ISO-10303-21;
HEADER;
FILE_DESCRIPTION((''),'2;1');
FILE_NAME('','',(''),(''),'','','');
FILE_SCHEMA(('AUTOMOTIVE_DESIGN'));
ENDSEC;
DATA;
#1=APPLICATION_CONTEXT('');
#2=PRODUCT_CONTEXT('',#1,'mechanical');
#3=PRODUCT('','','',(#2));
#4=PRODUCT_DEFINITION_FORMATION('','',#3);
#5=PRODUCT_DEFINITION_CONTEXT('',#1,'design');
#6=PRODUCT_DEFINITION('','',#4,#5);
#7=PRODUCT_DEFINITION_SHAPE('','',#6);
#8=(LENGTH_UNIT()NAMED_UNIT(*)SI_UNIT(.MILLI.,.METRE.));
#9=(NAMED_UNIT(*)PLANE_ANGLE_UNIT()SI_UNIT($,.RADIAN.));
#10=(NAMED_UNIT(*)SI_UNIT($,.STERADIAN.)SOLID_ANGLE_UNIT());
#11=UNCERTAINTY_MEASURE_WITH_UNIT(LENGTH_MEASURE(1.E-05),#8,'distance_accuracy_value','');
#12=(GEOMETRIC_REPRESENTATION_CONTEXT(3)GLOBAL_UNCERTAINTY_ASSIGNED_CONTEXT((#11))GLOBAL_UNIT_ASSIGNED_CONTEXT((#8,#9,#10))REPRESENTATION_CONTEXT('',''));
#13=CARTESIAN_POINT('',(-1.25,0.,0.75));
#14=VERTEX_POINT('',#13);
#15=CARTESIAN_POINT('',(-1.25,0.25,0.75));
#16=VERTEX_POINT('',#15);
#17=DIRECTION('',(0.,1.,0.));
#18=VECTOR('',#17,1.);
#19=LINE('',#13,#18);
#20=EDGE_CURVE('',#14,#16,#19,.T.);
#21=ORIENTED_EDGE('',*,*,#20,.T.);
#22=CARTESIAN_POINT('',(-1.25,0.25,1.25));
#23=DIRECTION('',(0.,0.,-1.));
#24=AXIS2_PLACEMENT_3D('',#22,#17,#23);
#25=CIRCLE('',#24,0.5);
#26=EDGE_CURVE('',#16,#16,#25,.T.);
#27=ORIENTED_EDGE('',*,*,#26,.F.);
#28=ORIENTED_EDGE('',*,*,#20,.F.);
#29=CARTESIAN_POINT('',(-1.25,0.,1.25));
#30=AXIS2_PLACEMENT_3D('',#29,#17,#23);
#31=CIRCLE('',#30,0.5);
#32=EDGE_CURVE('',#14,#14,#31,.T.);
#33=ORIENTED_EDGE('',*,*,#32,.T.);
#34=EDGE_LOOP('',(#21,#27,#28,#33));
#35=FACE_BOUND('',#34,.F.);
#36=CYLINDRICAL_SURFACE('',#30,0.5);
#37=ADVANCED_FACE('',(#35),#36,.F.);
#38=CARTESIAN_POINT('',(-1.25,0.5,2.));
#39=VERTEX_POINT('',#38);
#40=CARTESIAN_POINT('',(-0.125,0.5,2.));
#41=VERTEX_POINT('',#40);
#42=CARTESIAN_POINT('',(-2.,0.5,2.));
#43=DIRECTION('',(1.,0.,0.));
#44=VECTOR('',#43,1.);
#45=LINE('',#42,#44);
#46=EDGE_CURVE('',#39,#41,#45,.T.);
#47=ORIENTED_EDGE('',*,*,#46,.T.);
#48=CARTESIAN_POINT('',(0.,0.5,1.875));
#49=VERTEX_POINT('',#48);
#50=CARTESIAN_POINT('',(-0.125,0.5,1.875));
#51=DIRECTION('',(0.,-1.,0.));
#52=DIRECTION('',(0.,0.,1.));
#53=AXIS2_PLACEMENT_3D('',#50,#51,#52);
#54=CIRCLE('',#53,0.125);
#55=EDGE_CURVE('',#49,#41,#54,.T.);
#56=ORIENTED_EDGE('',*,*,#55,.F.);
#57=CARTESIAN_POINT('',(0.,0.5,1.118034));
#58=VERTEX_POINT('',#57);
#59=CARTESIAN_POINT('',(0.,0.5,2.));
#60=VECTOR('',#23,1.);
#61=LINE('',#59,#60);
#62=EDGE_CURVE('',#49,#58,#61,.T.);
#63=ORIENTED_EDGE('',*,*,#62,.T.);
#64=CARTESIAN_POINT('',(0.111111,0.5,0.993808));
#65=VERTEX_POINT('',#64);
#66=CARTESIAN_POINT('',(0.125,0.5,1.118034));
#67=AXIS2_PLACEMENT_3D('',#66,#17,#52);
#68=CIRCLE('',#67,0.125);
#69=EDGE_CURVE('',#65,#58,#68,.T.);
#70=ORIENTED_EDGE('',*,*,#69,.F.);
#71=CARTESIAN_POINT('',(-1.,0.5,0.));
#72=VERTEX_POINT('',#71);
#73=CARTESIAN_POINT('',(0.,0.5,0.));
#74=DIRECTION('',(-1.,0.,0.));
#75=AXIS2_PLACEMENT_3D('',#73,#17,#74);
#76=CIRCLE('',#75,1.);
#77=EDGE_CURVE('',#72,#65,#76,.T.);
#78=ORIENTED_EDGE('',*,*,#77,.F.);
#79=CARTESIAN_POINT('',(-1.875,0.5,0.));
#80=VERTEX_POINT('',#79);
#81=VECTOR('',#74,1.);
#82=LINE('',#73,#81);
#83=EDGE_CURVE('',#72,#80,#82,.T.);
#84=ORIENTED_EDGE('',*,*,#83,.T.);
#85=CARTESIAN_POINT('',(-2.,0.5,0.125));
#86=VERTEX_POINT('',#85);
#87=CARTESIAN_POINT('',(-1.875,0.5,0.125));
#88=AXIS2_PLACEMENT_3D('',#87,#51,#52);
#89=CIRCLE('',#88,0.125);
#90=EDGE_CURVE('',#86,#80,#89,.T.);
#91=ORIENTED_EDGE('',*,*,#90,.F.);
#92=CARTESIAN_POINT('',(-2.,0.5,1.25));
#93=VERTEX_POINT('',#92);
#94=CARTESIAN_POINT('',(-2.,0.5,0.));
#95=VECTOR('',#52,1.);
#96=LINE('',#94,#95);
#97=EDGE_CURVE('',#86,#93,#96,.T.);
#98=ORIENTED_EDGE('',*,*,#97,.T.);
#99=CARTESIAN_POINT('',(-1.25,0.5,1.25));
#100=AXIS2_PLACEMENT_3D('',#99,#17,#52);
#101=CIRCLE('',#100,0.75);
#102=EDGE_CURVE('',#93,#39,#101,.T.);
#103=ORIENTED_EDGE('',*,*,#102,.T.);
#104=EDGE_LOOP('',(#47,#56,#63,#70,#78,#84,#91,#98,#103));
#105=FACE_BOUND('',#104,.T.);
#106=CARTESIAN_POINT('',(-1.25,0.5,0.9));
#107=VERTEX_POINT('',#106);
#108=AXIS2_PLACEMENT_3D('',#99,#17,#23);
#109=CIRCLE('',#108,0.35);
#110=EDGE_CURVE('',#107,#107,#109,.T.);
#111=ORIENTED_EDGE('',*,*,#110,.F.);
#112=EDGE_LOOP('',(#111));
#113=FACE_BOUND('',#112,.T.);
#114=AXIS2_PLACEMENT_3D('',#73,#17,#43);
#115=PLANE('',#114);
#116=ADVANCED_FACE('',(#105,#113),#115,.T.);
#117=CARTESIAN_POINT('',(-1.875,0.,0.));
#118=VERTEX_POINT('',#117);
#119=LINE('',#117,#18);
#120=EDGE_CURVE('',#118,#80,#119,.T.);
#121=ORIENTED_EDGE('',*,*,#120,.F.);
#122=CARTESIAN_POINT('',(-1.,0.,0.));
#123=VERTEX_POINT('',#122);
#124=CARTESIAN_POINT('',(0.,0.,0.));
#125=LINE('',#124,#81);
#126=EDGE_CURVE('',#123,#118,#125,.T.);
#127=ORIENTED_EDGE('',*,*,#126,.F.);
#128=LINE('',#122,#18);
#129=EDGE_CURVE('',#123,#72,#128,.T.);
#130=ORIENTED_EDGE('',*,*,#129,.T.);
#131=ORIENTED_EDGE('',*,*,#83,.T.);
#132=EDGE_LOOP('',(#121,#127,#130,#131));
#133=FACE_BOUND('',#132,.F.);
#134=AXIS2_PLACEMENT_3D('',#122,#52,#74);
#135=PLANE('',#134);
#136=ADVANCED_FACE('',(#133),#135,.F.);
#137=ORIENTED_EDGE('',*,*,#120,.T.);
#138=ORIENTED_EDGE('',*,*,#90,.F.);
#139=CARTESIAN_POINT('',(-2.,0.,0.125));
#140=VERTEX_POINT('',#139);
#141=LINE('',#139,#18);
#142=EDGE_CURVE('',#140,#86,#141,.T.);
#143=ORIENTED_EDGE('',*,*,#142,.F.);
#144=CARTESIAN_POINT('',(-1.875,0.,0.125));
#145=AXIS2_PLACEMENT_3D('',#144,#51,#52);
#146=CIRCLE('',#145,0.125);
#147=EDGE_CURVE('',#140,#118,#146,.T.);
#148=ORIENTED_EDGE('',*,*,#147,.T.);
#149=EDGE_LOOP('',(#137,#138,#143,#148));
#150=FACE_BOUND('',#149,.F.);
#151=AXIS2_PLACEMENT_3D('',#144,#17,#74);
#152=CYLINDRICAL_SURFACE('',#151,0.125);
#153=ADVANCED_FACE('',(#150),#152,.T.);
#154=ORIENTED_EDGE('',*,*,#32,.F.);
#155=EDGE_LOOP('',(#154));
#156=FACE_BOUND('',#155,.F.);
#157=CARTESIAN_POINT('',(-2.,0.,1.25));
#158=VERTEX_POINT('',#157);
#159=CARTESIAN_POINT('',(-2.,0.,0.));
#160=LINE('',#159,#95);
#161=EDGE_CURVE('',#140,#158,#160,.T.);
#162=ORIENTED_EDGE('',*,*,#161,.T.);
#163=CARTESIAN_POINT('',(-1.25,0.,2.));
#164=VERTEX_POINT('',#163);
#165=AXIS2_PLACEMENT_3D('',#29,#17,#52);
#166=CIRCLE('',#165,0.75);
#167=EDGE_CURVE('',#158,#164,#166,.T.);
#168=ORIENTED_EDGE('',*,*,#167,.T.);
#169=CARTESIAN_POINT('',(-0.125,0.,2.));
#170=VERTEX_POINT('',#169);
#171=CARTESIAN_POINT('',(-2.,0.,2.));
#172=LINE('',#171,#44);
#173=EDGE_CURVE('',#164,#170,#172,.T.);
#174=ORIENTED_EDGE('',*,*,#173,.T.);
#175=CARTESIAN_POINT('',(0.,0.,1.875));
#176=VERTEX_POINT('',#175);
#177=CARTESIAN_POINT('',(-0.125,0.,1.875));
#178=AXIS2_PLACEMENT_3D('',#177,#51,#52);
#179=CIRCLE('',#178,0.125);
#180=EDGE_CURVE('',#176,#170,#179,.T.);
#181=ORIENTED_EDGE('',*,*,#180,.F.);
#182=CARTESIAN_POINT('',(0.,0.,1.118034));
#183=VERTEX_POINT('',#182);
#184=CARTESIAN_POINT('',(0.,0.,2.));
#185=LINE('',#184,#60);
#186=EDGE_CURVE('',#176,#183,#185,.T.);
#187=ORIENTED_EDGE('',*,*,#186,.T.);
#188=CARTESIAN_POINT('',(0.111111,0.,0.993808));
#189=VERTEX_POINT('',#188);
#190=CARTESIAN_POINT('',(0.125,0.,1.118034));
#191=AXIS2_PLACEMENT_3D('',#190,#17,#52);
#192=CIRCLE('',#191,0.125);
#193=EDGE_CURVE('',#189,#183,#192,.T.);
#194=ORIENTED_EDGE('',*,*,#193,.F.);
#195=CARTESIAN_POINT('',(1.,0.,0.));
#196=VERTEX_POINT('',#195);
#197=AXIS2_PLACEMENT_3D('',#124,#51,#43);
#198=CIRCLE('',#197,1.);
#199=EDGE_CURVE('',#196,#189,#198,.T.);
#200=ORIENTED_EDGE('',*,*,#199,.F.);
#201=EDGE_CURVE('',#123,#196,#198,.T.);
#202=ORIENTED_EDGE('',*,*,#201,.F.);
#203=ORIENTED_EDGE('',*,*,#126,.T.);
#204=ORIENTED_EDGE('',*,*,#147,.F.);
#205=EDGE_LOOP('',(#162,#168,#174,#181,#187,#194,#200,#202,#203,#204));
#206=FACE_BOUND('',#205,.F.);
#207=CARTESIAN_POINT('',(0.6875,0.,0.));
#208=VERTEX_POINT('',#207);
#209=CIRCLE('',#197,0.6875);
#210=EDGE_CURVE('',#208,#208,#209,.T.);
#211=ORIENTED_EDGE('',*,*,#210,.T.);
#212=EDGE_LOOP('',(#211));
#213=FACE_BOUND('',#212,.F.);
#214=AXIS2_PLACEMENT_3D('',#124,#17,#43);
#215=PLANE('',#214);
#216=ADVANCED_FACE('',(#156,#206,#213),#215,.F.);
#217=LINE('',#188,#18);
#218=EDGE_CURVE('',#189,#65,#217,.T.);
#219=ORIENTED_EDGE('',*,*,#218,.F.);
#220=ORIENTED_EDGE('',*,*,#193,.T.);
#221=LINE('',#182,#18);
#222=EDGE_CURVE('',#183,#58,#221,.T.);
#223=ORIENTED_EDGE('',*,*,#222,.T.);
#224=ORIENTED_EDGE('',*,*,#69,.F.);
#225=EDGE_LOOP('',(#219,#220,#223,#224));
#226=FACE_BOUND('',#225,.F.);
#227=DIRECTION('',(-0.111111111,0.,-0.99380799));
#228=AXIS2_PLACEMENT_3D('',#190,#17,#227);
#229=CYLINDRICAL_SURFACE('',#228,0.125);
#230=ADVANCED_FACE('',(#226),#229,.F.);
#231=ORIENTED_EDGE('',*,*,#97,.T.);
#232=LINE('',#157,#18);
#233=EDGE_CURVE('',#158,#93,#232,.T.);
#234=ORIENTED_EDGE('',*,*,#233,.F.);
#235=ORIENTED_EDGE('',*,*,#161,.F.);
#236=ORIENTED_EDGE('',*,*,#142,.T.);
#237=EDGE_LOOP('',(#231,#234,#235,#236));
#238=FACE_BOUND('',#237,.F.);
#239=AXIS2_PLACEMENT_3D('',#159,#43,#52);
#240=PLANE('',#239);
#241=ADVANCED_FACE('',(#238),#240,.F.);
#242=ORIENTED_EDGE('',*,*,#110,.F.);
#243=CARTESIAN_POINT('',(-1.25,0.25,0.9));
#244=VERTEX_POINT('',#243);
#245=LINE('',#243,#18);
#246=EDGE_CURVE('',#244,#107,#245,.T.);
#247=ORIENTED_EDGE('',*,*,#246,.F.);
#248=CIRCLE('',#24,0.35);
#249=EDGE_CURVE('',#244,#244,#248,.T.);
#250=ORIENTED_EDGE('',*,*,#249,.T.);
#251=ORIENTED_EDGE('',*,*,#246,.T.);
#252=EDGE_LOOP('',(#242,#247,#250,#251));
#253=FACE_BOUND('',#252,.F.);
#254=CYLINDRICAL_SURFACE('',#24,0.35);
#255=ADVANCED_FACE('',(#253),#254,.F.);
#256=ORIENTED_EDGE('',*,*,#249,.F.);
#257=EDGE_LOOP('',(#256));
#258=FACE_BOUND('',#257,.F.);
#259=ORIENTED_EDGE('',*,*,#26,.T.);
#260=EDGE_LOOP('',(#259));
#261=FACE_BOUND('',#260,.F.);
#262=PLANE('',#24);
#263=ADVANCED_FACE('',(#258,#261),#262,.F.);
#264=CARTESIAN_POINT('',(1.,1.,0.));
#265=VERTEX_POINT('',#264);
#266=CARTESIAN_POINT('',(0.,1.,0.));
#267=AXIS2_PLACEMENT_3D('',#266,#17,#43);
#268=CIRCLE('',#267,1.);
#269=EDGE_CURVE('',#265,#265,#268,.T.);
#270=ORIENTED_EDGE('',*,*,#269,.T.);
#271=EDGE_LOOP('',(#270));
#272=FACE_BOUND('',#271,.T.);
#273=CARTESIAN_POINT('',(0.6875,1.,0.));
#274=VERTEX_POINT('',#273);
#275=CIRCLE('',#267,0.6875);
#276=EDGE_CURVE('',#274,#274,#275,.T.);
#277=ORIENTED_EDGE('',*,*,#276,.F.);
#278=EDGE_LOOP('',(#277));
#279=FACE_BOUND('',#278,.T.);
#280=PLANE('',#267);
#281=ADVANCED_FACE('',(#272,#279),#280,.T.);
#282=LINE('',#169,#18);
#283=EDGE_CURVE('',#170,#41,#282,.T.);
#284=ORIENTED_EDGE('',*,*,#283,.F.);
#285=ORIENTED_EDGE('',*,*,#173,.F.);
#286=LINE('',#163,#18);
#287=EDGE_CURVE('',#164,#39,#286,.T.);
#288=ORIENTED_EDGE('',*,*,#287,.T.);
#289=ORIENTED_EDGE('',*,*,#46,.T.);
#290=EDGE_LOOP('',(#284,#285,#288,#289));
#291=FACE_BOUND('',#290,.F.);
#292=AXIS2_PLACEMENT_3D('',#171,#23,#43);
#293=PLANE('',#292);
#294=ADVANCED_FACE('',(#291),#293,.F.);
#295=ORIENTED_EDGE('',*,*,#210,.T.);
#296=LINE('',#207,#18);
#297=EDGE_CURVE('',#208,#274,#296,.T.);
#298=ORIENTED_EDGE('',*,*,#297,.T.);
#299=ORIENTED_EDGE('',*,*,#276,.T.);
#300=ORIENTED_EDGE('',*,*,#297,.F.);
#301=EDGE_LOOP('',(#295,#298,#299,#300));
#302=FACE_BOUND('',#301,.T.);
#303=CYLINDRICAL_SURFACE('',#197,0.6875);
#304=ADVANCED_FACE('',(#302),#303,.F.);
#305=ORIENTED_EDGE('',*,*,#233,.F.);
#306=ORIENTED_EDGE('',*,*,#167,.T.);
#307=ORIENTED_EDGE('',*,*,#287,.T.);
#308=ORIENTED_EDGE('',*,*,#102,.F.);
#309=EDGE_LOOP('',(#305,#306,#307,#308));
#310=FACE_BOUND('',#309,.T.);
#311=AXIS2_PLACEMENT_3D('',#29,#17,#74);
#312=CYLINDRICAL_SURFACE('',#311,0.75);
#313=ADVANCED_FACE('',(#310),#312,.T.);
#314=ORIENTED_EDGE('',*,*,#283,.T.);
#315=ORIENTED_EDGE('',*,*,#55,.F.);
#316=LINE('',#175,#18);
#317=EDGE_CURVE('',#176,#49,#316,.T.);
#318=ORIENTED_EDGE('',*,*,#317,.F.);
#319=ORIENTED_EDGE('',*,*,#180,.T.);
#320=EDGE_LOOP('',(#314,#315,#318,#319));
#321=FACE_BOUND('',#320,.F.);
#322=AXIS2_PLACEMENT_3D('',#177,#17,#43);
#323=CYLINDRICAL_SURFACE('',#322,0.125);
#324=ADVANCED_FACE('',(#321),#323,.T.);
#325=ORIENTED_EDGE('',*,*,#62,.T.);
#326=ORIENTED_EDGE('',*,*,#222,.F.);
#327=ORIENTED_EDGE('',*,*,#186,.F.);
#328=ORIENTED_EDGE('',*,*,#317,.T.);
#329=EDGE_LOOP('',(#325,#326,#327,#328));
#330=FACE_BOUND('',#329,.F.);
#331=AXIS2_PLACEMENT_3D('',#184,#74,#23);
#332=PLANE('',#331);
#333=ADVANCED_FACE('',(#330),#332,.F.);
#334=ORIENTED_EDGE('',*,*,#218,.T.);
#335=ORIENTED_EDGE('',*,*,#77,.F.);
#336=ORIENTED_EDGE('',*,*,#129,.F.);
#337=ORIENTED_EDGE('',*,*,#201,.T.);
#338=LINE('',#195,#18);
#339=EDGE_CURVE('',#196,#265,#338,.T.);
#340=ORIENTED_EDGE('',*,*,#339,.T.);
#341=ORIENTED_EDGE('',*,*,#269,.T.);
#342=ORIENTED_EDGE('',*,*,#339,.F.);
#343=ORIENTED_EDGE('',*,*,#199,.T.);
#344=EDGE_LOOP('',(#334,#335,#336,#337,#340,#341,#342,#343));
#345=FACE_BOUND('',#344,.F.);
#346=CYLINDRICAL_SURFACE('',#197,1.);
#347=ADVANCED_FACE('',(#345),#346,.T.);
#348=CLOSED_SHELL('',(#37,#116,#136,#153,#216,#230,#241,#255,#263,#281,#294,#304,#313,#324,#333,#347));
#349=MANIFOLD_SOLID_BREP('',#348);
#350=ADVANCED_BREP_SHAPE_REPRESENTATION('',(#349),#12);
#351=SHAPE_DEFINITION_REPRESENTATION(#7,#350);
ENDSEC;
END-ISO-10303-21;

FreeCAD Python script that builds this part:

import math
import FreeCAD as App
import Part
import Sketcher
from FreeCAD import Vector


def edges_at(feature, points):
    """Names of the edges that pass closest to the given points."""
    edges = feature.Shape.Edges
    near = lambda p: min(range(len(edges)), key=lambda i: edges[i].distToShape(Part.Vertex(*p))[0])
    return sorted({f"Edge{near(p) + 1}" for p in points})

doc = App.newDocument("Part")
body = doc.addObject("PartDesign::Body", "Body")

# Sketch on XZ plane
sketch1 = doc.addObject("Sketcher::SketchObject", "Sketch")
body.addObject(sketch1)
sketch1.AttachmentSupport = (doc.XZ_Plane, [""])
sketch1.MapMode = "FlatFace"
sketch1.addGeometry([
    Part.Circle(Vector(0, 0, 0), Vector(0, 0, 1), 1),
    Part.Circle(Vector(0, 0, 0), Vector(0, 0, 1), 0.6875),
], False)
sketch1.addConstraint([
    Sketcher.Constraint("Coincident", 0, 3, -1, 1),
    Sketcher.Constraint("Coincident", 1, 3, -1, 1),
    Sketcher.Constraint("Diameter", 0, 2.0),
    Sketcher.Constraint("Diameter", 1, 1.375),
])
pad1 = doc.addObject("PartDesign::Pad", "Pad")
body.addObject(pad1)
pad1.Profile = sketch1
pad1.Length = 1
pad1.Reversed = True

# Sketch on XZ plane
sketch2 = doc.addObject("Sketcher::SketchObject", "Sketch001")
body.addObject(sketch2)
sketch2.AttachmentSupport = (doc.XZ_Plane, [""])
sketch2.MapMode = "FlatFace"
sketch2.addGeometry([
    Part.ArcOfCircle(Part.Circle(Vector(0, 0, 0), Vector(0, 0, 1), 1), math.radians(90), math.radians(180)),  # 0
    Part.LineSegment(Vector(-1, 0, 0), Vector(-2, 0, 0)),  # 1
    Part.LineSegment(Vector(-2, 0, 0), Vector(-2, 2, 0)),  # 2
    Part.LineSegment(Vector(-2, 2, 0), Vector(0, 2, 0)),  # 3
    Part.LineSegment(Vector(0, 2, 0), Vector(0, 1, 0)),  # 4
], False)
sketch2.addConstraint([
    Sketcher.Constraint("Coincident", 0, 2, 1, 1),
    Sketcher.Constraint("Coincident", 1, 2, 2, 1),
    Sketcher.Constraint("Coincident", 2, 2, 3, 1),
    Sketcher.Constraint("Coincident", 3, 2, 4, 1),
    Sketcher.Constraint("Coincident", 4, 2, 0, 1),
    Sketcher.Constraint("Horizontal", 1),
    Sketcher.Constraint("Vertical", 2),
    Sketcher.Constraint("Horizontal", 3),
    Sketcher.Constraint("Vertical", 4),
    Sketcher.Constraint("Coincident", 0, 3, -1, 1),
    Sketcher.Constraint("PointOnObject", 0, 2, -1),
    Sketcher.Constraint("PointOnObject", 3, 2, -2),
    Sketcher.Constraint("Equal", 3, 2),
    Sketcher.Constraint("Radius", 0, 1.0),
    Sketcher.Constraint("DistanceX", 3, 1, 3, 2, 2.0),
])
pad2 = doc.addObject("PartDesign::Pad", "Pad001")
body.addObject(pad2)
pad2.Profile = sketch2
pad2.Length = 0.5
pad2.Reversed = True

# Sketch on XZ plane
sketch3 = doc.addObject("Sketcher::SketchObject", "Sketch002")
body.addObject(sketch3)
sketch3.AttachmentSupport = (doc.XZ_Plane, [""])
sketch3.MapMode = "FlatFace"
sketch3.addGeometry(Part.Circle(Vector(-1.25, 1.25, 0), Vector(0, 0, 1), 0.35), False)
sketch3.addConstraint([
    Sketcher.Constraint("Diameter", 0, 0.7),
    Sketcher.Constraint("DistanceX", 0, 3, -1, 1, 1.25),
    Sketcher.Constraint("DistanceY", -1, 1, 0, 3, 1.25),
])
doc.recompute()
hole = doc.addObject("PartDesign::Hole", "Hole")
body.addObject(hole)
hole.Profile = sketch3
hole.ThreadType = "None"
hole.Diameter = 0.7
hole.DepthType = "ThroughAll"
hole.HoleCutType = "Counterbore"
hole.HoleCutDiameter = 1
hole.HoleCutDepth = 0.25
doc.recompute()

fillet = doc.addObject("PartDesign::Fillet", "Fillet")
body.addObject(fillet)
fillet.Base = (hole, edges_at(hole, [(0, 0.25, 1)]))
fillet.Radius = 0.125
doc.recompute()

fillet2 = doc.addObject("PartDesign::Fillet", "Fillet001")
body.addObject(fillet2)
fillet2.Base = (fillet, edges_at(fillet, [(0, 0.25, 2)]))
fillet2.Radius = 0.125
doc.recompute()

fillet3 = doc.addObject("PartDesign::Fillet", "Fillet002")
body.addObject(fillet3)
fillet3.Base = (fillet2, edges_at(fillet2, [(-2, 0.25, 0)]))
fillet3.Radius = 0.125
doc.recompute()

fillet4 = doc.addObject("PartDesign::Fillet", "Fillet003")
body.addObject(fillet4)
fillet4.Base = (fillet3, edges_at(fillet3, [(-2, 0.25, 2)]))
fillet4.Radius = 0.75

doc.recompute()
